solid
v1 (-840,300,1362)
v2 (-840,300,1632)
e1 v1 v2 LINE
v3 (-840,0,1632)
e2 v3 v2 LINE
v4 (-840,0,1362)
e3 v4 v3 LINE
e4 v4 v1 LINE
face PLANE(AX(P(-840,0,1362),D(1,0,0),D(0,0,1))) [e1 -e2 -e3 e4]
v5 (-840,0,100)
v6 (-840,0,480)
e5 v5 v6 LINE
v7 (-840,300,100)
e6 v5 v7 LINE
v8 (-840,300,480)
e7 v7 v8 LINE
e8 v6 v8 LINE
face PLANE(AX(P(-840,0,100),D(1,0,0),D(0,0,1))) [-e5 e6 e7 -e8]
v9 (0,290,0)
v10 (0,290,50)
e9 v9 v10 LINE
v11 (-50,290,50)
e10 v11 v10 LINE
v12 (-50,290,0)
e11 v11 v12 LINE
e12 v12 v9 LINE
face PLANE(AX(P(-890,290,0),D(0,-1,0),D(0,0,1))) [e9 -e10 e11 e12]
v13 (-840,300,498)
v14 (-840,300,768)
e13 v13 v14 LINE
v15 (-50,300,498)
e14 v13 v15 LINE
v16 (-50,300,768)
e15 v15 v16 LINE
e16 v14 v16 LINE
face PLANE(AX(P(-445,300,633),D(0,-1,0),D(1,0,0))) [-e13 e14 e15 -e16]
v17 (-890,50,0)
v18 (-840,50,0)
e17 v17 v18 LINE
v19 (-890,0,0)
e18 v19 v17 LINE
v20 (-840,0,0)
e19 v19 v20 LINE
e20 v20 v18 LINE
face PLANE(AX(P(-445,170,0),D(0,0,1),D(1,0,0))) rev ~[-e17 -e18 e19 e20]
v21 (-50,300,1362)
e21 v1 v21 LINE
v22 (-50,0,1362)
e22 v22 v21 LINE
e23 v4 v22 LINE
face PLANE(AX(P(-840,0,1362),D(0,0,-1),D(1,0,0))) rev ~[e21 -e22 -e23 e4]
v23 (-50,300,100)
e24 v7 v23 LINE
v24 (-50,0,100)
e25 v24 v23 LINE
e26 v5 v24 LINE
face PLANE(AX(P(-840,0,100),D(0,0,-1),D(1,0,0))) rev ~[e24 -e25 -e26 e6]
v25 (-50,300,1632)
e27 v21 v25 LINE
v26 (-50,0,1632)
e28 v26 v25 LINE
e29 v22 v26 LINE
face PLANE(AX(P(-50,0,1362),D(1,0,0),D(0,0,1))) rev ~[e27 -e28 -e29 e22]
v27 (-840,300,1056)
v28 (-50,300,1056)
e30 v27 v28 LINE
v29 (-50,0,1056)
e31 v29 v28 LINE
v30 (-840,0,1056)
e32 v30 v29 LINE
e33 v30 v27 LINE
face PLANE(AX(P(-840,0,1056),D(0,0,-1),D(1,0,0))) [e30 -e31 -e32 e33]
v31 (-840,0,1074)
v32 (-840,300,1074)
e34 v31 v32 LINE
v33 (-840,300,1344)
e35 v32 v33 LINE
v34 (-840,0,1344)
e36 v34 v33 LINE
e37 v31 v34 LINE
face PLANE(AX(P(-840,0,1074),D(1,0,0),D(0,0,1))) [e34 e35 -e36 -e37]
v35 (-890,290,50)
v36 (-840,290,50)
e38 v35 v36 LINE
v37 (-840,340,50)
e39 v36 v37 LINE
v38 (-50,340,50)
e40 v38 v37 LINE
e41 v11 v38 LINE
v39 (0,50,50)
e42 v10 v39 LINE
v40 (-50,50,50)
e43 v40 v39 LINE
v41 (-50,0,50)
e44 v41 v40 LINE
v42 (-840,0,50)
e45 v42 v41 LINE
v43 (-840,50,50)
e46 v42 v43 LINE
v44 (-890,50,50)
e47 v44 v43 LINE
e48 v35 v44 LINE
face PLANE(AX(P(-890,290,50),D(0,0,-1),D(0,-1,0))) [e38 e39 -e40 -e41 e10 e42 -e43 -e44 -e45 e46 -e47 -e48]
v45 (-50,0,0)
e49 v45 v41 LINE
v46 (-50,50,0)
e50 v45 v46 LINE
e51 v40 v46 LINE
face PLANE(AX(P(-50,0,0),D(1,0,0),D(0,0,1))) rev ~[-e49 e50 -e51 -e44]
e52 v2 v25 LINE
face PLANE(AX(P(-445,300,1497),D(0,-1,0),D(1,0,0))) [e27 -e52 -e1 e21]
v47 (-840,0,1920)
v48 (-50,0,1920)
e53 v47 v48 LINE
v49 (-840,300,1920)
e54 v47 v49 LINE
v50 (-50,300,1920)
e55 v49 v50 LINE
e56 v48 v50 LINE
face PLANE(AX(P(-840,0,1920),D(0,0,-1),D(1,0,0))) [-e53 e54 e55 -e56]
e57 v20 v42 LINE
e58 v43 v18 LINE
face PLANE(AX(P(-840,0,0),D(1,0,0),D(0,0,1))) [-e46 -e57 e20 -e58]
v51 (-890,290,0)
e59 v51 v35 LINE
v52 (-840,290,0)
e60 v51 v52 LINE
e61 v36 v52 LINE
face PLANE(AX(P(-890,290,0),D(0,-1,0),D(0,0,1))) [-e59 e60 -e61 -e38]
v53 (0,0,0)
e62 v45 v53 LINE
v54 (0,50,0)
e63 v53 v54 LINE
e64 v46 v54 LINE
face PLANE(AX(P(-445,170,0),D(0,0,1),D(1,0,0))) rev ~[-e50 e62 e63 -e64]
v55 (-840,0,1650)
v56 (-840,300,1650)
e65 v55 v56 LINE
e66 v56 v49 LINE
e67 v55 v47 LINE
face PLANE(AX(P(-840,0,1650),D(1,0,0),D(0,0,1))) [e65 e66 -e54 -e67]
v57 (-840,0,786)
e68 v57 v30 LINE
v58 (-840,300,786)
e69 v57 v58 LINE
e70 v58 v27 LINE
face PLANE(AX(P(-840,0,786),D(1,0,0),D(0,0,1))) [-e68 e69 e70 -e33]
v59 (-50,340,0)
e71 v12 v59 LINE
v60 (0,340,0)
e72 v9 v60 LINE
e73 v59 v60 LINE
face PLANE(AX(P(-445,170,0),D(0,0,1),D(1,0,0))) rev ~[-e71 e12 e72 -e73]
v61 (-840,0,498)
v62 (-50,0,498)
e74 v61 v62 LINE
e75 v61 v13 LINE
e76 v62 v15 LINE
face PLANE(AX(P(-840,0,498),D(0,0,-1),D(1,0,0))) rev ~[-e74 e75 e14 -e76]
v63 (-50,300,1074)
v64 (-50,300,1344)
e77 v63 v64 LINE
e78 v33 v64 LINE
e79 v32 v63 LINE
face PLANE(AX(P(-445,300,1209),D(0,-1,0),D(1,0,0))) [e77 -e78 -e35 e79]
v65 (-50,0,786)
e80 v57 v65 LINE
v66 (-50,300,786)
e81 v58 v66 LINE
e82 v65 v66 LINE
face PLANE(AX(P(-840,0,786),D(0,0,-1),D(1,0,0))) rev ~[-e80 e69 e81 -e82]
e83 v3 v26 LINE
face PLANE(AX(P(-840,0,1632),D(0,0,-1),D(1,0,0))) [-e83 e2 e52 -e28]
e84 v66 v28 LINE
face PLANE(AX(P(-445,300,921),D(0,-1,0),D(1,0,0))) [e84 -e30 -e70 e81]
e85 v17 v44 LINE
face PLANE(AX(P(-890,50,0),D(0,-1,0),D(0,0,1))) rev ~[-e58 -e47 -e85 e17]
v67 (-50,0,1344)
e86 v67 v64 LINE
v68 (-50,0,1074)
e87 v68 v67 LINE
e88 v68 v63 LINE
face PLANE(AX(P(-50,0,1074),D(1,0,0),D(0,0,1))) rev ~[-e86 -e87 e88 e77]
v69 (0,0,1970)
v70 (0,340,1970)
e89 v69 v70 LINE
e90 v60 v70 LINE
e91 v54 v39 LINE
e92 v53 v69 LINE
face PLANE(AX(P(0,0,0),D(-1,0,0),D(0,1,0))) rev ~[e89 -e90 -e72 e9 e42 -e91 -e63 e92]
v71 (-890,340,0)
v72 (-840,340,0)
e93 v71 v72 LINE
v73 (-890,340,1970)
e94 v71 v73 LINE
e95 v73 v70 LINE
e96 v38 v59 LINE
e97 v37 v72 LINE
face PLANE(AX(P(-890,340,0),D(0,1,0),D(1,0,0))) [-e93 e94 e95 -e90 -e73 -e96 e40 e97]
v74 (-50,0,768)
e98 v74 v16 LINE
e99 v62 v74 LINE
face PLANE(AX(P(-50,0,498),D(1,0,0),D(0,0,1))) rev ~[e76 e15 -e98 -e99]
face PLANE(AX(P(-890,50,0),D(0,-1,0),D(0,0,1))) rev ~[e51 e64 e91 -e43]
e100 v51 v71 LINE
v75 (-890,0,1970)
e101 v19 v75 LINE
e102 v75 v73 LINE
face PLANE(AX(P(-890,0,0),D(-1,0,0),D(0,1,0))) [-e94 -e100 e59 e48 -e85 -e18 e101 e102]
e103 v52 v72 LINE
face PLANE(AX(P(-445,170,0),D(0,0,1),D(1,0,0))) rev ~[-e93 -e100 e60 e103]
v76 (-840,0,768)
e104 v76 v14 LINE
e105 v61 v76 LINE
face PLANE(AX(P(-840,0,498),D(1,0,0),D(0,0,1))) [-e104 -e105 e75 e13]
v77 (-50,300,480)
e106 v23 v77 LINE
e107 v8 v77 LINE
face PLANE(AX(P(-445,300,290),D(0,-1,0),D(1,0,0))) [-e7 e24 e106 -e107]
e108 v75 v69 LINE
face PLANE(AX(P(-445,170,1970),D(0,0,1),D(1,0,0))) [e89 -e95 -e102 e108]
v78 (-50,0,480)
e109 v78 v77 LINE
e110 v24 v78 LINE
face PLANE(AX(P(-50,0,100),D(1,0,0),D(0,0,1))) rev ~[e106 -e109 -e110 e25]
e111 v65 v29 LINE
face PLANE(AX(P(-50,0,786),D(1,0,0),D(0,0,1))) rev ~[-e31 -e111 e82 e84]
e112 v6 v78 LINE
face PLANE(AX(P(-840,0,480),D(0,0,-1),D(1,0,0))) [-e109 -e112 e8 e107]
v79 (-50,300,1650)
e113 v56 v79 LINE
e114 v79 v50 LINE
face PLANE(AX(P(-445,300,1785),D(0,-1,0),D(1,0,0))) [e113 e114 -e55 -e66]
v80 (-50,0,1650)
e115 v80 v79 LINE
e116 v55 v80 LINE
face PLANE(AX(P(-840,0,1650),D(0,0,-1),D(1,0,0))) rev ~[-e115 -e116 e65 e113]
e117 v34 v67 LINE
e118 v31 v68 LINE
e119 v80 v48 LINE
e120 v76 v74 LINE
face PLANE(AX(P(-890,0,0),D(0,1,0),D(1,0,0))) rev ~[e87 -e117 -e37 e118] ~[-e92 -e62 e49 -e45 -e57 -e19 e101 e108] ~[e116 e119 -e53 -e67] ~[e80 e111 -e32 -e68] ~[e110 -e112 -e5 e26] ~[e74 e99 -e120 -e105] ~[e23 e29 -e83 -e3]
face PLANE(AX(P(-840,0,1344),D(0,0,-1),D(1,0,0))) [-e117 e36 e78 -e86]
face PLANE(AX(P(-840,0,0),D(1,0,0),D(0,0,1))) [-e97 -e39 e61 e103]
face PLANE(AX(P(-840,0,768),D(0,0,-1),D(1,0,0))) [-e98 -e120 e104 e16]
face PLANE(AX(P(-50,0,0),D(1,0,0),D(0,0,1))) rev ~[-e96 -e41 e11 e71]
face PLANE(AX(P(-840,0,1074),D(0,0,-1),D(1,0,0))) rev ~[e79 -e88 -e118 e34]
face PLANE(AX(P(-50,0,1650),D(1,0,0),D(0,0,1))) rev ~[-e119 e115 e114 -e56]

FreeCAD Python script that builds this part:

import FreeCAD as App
import Part
import Sketcher

V = App.Vector
Q = App.Units.Quantity


def add_polygon(sketch, points):
    """Adds a closed chain of lines whose ends are joined by coincident constraints."""
    first, n = sketch.GeometryCount, len(points)
    for a, b in zip(points, points[1:] + points[:1]):
        sketch.addGeometry(Part.LineSegment(App.Vector(*a, 0), App.Vector(*b, 0)), False)
    for i in range(n):
        sketch.addConstraint(Sketcher.Constraint("Coincident", first + i, 2, first + (i + 1) % n, 1))

doc = App.newDocument("Part")
body = doc.addObject("PartDesign::Body", "Body")

sketch1 = body.newObject("Sketcher::SketchObject", "Sketch")
sketch1.AttachmentSupport = (doc.getObject("XY_Plane"), [""])
sketch1.MapMode = "FlatFace"
add_polygon(sketch1, [(-890, 340), (-890, 0), (0, 0), (0, 340)])
sketch1.addConstraint([
    Sketcher.Constraint("Vertical", 0),
    Sketcher.Constraint("Horizontal", 1),
    Sketcher.Constraint("Vertical", 2),
    Sketcher.Constraint("Horizontal", 3),
    Sketcher.Constraint("Coincident", 1, 2, -1, 1),
    Sketcher.Constraint("DistanceX", 1, 1, 1, 2, Q("890 mm")),
    Sketcher.Constraint("DistanceY", 0, 2, 0, 1, Q("340 mm")),
])
pad1 = body.newObject("PartDesign::Pad", "Pad")
pad1.Profile = sketch1
pad1.Length = 1970

sketch2 = body.newObject("Sketcher::SketchObject", "Sketch001")
sketch2.AttachmentSupport = (doc.getObject("XZ_Plane"), [""])
sketch2.MapMode = "FlatFace"
add_polygon(sketch2, [(-840, 50), (-840, 0), (-50, 0), (-50, 50)])
sketch2.addConstraint([
    Sketcher.Constraint("Vertical", 0),
    Sketcher.Constraint("Horizontal", 1),
    Sketcher.Constraint("Vertical", 2),
    Sketcher.Constraint("Horizontal", 3),
    Sketcher.Constraint("PointOnObject", 0, 2, -1),
    Sketcher.Constraint("DistanceX", 1, 1, 1, 2, Q("790 mm")),
    Sketcher.Constraint("DistanceY", 0, 2, 0, 1, Q("50 mm")),
    Sketcher.Constraint("DistanceX", 0, 2, -1, 1, Q("840 mm")),
])
pocket1 = body.newObject("PartDesign::Pocket", "Pocket")
pocket1.Profile = sketch2
pocket1.Length = 350

sketch3 = body.newObject("Sketcher::SketchObject", "Sketch002")
sketch3.AttachmentSupport = (doc.getObject("XZ_Plane"), [""])
sketch3.MapMode = "FlatFace"
add_polygon(sketch3, [(-840, 480), (-840, 100), (-50, 100), (-50, 480)])
add_polygon(sketch3, [(-840, 768), (-840, 498), (-50, 498), (-50, 768)])
add_polygon(sketch3, [(-840, 1056), (-840, 786), (-50, 786), (-50, 1056)])
add_polygon(sketch3, [(-840, 1344), (-840, 1074), (-50, 1074), (-50, 1344)])
add_polygon(sketch3, [(-840, 1632), (-840, 1362), (-50, 1362), (-50, 1632)])
add_polygon(sketch3, [(-840, 1920), (-840, 1650), (-50, 1650), (-50, 1920)])
sketch3.addConstraint([
    Sketcher.Constraint("Vertical", 0),
    Sketcher.Constraint("Horizontal", 1),
    Sketcher.Constraint("Vertical", 2),
    Sketcher.Constraint("Horizontal", 3),
    Sketcher.Constraint("Vertical", 4),
    Sketcher.Constraint("Horizontal", 5),
    Sketcher.Constraint("Vertical", 6),
    Sketcher.Constraint("Horizontal", 7),
    Sketcher.Constraint("Vertical", 8),
    Sketcher.Constraint("Horizontal", 9),
    Sketcher.Constraint("Vertical", 10),
    Sketcher.Constraint("Horizontal", 11),
    Sketcher.Constraint("Vertical", 12),
    Sketcher.Constraint("Horizontal", 13),
    Sketcher.Constraint("Vertical", 14),
    Sketcher.Constraint("Horizontal", 15),
    Sketcher.Constraint("Vertical", 16),
    Sketcher.Constraint("Horizontal", 17),
    Sketcher.Constraint("Vertical", 18),
    Sketcher.Constraint("Horizontal", 19),
    Sketcher.Constraint("Vertical", 20),
    Sketcher.Constraint("Horizontal", 21),
    Sketcher.Constraint("Vertical", 22),
    Sketcher.Constraint("Horizontal", 23),
    Sketcher.Constraint("Vertical", 3, 2, 4, 2),
    Sketcher.Constraint("Vertical", 2, 2, 5, 2),
    Sketcher.Constraint("Vertical", 7, 2, 8, 2),
    Sketcher.Constraint("Vertical", 6, 2, 9, 2),
    Sketcher.Constraint("Vertical", 11, 2, 12, 2),
    Sketcher.Constraint("Vertical", 10, 2, 13, 2),
    Sketcher.Constraint("Vertical", 15, 2, 16, 2),
    Sketcher.Constraint("Vertical", 14, 2, 17, 2),
    Sketcher.Constraint("Vertical", 19, 2, 20, 2),
    Sketcher.Constraint("Vertical", 18, 2, 21, 2),
    Sketcher.Constraint("Equal", 6, 8),
    Sketcher.Constraint("Equal", 10, 12),
    Sketcher.Constraint("Equal", 14, 16),
    Sketcher.Constraint("Equal", 18, 20),
    Sketcher.Constraint("DistanceX", 1, 1, 1, 2, Q("790 mm")),
    Sketcher.Constraint("DistanceY", 0, 2, 0, 1, Q("380 mm")),
    Sketcher.Constraint("DistanceY", 4, 2, 4, 1, Q("270 mm")),
    Sketcher.Constraint("DistanceX", 0, 2, -1, 1, Q("840 mm")),
    Sketcher.Constraint("DistanceY", -1, 1, 0, 2, Q("100 mm")),
    Sketcher.Constraint("DistanceY", -1, 1, 4, 2, Q("498 mm")),
    Sketcher.Constraint("DistanceY", -1, 1, 8, 2, Q("786 mm")),
    Sketcher.Constraint("DistanceY", -1, 1, 12, 2, Q("1074 mm")),
    Sketcher.Constraint("DistanceY", -1, 1, 16, 2, Q("1362 mm")),
    Sketcher.Constraint("DistanceY", -1, 1, 20, 2, Q("1650 mm")),
])
pocket2 = body.newObject("PartDesign::Pocket", "Pocket001")
pocket2.Profile = sketch3
pocket2.Length = 300

sketch4 = body.newObject("Sketcher::SketchObject", "Sketch003")
sketch4.AttachmentSupport = (doc.getObject("YZ_Plane"), [""])
sketch4.MapMode = "FlatFace"
sketch4.AttachmentOffset = App.Placement(V(0, 0, -890), App.Rotation())
add_polygon(sketch4, [(290, 50), (290, 0), (50, 0), (50, 50)])
sketch4.addConstraint([
    Sketcher.Constraint("Vertical", 0),
    Sketcher.Constraint("Horizontal", 1),
    Sketcher.Constraint("Vertical", 2),
    Sketcher.Constraint("Horizontal", 3),
    Sketcher.Constraint("PointOnObject", 0, 2, -1),
    Sketcher.Constraint("DistanceX", 1, 2, 1, 1, Q("240 mm")),
    Sketcher.Constraint("DistanceY", 0, 2, 0, 1, Q("50 mm")),
    Sketcher.Constraint("DistanceX", -1, 1, 0, 2, Q("290 mm")),
])
pocket3 = body.newObject("PartDesign::Pocket", "Pocket002")
pocket3.Profile = sketch4
pocket3.Length = 895
pocket3.Reversed = True

doc.recompute()
